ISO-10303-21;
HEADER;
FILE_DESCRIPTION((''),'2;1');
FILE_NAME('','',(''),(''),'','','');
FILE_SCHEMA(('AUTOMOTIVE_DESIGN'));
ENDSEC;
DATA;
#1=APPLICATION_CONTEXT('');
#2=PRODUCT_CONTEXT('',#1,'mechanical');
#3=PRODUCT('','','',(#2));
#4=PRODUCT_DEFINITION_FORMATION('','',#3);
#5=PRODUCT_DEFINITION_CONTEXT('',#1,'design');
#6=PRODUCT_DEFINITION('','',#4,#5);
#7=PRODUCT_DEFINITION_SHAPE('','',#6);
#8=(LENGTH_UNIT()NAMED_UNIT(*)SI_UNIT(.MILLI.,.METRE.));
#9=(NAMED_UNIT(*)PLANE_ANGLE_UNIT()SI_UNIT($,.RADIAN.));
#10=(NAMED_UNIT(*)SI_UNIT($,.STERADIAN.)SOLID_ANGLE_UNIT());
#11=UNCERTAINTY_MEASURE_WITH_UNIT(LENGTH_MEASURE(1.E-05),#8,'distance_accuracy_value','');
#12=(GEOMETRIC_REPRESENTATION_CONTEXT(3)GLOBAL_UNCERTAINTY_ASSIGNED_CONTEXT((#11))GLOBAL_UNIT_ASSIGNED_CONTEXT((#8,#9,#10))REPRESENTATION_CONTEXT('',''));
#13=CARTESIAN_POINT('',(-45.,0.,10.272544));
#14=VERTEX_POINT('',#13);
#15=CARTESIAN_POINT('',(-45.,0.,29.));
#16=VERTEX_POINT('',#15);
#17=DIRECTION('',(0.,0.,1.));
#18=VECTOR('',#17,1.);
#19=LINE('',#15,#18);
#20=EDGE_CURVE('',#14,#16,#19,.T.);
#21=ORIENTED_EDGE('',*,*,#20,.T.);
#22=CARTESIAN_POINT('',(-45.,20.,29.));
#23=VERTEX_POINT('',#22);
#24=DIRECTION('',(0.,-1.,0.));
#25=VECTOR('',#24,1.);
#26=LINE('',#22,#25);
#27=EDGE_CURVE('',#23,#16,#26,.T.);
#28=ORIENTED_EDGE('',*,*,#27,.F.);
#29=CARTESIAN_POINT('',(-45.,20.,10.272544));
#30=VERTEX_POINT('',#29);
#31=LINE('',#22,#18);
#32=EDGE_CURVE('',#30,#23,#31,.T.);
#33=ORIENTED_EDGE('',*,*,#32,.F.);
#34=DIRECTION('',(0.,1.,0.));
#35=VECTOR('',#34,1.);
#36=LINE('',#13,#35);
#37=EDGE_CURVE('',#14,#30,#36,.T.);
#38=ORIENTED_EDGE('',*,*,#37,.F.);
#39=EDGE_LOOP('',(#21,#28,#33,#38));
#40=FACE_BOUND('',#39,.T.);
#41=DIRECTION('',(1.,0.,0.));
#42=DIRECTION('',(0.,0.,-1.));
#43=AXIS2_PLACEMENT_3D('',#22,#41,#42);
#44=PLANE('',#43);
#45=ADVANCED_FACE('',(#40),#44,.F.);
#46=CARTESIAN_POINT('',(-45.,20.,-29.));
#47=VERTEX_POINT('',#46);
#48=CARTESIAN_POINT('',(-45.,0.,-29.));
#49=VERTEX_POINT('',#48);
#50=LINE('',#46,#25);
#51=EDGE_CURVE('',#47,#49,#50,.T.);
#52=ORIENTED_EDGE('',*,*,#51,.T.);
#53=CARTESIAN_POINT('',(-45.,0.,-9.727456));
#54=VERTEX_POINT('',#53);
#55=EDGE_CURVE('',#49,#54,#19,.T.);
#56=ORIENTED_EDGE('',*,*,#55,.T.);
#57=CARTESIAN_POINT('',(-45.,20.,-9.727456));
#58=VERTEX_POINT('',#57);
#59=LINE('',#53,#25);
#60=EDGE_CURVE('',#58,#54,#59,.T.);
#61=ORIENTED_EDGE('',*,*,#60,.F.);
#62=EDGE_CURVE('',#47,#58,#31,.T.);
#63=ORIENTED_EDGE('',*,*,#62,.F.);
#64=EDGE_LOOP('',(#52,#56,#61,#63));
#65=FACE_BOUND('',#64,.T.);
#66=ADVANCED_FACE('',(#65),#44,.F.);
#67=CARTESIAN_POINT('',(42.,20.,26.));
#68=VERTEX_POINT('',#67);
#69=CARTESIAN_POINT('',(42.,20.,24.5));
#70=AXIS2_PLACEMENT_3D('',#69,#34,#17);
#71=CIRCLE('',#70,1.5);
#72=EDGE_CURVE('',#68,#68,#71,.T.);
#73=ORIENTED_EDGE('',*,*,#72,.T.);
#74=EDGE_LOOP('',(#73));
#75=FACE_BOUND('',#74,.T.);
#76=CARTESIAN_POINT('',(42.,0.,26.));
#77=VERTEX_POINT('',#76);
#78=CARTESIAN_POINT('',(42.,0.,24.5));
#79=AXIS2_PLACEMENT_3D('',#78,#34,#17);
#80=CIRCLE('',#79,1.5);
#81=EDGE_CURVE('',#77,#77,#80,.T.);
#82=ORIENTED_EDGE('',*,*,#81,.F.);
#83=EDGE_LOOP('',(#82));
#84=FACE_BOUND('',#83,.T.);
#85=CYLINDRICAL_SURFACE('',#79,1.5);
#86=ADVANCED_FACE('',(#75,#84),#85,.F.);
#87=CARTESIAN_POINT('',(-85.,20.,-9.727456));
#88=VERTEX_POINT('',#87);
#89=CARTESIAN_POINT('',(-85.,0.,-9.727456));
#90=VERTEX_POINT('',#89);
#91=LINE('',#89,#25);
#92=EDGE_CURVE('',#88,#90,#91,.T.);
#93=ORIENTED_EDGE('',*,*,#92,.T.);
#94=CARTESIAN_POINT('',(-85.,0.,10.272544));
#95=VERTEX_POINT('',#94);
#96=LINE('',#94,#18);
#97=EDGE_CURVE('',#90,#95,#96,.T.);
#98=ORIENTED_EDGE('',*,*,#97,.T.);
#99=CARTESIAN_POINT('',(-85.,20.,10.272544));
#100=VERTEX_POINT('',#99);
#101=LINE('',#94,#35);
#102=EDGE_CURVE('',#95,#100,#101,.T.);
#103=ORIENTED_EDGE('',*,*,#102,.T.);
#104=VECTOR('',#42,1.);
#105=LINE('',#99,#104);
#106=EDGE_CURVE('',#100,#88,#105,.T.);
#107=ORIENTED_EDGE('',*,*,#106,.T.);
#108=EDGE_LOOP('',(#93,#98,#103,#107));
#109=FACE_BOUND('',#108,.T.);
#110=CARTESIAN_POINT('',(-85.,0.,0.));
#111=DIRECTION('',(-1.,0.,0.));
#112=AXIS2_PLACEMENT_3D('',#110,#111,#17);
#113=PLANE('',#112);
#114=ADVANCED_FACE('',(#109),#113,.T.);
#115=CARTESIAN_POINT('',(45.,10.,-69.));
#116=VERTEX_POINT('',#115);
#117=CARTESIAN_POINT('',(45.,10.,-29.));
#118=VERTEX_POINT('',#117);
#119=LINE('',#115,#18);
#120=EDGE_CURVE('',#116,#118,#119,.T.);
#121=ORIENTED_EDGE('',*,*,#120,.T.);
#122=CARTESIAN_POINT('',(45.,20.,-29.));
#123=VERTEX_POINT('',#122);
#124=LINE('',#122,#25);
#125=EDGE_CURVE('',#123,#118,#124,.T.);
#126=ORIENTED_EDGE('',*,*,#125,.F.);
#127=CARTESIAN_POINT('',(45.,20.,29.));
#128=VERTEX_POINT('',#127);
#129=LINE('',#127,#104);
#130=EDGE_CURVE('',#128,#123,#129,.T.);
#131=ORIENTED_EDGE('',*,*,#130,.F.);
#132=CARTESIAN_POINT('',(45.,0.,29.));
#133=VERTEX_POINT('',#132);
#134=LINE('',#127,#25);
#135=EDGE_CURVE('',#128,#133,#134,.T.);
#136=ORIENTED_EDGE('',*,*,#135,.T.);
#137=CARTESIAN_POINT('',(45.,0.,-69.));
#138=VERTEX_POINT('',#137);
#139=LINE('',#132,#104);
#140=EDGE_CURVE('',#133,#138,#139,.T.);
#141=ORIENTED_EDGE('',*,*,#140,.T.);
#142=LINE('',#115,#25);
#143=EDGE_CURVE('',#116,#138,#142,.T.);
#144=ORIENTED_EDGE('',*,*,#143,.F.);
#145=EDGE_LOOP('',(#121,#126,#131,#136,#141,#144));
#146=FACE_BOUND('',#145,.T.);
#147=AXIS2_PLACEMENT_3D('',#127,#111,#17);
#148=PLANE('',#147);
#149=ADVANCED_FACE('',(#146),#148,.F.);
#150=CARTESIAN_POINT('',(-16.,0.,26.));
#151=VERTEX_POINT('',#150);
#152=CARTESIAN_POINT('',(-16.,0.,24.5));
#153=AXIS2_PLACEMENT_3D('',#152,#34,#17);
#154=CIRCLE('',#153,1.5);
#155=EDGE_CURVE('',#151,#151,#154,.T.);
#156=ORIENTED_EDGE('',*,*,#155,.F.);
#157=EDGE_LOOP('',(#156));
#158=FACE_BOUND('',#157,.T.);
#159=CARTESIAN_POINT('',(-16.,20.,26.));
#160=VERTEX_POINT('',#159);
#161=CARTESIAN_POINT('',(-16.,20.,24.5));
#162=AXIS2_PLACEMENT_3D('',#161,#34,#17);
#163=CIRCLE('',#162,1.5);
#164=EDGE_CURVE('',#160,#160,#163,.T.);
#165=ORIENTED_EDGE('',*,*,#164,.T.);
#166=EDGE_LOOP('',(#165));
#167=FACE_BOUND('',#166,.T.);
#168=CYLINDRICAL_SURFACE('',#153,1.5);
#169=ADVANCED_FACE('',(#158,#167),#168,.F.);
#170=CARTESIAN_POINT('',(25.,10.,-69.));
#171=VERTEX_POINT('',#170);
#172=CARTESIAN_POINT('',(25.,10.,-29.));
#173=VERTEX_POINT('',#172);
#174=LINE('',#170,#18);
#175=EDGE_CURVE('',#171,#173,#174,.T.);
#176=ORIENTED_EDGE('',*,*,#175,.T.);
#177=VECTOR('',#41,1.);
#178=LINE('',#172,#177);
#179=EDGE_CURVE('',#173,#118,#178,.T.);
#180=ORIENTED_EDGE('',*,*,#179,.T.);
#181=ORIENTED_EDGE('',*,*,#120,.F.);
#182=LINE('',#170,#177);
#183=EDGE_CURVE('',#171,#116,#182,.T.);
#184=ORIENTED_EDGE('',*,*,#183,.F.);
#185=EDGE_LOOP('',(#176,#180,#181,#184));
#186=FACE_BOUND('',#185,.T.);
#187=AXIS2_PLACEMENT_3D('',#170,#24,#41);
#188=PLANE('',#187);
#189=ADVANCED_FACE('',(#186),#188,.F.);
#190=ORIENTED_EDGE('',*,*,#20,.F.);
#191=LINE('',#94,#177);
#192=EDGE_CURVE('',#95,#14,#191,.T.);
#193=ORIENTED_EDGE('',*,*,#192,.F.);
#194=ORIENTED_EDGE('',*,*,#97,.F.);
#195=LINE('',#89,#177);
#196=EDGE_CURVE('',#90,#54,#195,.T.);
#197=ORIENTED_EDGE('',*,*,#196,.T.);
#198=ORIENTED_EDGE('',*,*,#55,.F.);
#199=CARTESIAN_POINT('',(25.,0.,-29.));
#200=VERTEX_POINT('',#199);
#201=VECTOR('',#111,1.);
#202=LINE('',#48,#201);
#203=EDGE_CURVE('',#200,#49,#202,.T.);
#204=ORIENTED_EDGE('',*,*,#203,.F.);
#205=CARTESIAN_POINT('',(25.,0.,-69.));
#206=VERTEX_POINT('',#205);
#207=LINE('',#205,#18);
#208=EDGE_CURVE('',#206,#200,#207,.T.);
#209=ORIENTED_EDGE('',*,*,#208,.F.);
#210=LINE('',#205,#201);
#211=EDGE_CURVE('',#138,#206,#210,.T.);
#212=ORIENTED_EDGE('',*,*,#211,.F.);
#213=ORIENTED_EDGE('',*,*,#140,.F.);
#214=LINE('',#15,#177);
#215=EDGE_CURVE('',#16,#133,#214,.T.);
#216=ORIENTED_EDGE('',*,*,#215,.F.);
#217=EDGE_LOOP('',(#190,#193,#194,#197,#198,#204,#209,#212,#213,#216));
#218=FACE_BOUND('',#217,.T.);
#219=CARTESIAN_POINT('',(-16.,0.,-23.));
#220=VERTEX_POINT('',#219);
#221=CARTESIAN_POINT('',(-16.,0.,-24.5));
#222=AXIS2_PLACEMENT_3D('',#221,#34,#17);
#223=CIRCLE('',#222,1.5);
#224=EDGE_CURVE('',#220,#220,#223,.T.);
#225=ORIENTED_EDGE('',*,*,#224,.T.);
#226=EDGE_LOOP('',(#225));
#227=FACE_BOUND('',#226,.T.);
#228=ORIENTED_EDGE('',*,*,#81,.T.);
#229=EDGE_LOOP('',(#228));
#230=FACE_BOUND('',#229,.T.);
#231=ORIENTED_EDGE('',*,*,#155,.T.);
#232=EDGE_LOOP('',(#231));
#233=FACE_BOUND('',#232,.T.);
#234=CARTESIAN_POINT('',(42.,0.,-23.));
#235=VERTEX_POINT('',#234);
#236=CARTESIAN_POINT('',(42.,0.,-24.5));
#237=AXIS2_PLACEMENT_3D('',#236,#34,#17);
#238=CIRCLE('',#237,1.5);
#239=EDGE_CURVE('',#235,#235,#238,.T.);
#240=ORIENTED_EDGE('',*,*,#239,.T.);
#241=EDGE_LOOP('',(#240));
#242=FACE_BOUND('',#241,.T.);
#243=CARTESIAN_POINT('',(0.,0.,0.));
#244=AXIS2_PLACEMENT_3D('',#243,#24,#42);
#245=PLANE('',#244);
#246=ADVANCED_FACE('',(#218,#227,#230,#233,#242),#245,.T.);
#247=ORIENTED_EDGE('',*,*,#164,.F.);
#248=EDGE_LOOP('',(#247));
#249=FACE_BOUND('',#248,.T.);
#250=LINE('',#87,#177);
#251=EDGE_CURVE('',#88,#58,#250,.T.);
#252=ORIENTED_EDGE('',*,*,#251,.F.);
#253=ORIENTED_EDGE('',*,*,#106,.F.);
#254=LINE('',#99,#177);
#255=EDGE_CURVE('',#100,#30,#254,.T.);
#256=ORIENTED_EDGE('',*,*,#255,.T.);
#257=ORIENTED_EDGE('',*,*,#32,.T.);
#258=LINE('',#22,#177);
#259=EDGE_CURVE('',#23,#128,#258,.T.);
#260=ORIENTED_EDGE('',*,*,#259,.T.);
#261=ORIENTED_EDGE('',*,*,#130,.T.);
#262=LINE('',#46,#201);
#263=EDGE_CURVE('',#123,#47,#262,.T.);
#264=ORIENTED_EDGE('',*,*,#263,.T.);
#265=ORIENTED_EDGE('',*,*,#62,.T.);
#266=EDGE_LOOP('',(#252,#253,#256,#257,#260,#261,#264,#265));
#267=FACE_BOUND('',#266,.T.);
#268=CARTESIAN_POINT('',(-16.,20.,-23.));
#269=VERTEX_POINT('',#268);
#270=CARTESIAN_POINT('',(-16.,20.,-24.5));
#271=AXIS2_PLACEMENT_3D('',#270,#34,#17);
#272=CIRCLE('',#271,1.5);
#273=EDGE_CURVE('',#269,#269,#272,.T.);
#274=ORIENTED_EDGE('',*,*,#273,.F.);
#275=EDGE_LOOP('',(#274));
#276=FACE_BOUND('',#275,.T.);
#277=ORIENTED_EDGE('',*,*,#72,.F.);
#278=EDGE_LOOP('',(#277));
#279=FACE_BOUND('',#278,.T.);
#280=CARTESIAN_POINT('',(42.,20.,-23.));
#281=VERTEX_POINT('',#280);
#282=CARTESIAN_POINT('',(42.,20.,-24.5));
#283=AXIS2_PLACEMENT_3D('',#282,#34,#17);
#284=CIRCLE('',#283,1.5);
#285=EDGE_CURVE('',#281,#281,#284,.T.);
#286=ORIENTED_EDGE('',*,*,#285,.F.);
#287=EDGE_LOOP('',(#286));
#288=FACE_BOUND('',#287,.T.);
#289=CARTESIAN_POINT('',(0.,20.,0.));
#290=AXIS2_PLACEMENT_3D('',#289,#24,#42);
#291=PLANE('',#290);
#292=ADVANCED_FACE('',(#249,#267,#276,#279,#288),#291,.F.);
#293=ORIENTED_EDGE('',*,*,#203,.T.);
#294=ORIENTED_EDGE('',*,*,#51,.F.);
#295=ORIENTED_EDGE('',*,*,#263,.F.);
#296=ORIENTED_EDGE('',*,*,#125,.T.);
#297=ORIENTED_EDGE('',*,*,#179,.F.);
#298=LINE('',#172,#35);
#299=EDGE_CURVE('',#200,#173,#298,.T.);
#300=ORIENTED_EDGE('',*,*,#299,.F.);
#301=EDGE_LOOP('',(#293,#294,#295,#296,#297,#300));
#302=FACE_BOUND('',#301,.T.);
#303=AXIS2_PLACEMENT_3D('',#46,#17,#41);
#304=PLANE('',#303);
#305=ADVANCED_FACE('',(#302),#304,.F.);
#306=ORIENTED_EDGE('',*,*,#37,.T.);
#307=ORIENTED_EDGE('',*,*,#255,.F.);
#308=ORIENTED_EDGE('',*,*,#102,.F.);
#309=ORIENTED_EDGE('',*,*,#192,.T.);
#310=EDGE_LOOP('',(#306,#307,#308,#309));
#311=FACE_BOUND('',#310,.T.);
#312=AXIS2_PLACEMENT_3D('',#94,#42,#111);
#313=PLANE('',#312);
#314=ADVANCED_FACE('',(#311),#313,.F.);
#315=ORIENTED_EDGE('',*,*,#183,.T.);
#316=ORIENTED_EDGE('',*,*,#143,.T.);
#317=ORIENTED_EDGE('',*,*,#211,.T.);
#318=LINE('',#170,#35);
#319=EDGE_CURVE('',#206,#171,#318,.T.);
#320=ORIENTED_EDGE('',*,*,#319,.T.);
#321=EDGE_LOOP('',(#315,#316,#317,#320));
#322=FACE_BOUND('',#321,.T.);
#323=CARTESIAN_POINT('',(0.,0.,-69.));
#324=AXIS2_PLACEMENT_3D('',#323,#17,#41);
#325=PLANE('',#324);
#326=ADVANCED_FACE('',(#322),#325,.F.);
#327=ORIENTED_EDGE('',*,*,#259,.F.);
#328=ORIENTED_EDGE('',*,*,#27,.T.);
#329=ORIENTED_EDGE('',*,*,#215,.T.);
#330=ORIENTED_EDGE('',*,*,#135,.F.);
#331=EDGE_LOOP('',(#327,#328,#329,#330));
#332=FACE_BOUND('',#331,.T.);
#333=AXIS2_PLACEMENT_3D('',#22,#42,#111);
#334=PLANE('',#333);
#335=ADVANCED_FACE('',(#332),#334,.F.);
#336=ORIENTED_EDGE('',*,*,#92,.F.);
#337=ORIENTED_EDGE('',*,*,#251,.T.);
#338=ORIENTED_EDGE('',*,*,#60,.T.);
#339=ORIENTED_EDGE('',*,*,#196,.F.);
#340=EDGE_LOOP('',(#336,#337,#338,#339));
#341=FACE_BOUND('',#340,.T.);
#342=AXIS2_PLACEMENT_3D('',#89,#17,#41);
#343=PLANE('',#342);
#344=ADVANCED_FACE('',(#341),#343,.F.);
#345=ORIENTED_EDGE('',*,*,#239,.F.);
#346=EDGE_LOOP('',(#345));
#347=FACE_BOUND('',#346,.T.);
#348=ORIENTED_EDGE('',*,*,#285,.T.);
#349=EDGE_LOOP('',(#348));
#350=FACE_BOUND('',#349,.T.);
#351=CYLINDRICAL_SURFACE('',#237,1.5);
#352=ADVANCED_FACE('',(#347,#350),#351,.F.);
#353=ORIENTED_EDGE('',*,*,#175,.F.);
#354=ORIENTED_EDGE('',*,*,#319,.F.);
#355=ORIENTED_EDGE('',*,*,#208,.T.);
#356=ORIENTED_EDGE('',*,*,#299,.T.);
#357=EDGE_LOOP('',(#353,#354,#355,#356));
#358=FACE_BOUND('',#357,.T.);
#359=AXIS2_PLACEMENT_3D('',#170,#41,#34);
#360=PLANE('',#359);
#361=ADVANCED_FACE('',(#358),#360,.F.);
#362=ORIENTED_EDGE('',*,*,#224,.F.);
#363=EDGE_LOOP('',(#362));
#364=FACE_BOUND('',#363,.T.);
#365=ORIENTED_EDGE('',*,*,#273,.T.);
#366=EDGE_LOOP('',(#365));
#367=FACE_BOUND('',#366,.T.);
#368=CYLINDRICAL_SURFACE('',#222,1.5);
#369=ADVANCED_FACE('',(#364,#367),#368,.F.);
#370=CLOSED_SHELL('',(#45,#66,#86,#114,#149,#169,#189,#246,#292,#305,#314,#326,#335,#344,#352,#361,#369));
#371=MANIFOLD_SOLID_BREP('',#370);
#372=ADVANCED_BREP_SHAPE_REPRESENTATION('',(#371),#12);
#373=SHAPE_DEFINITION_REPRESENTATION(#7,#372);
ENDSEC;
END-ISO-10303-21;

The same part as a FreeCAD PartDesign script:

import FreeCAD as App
import Part
import Sketcher
Q = App.Units.Quantity


def add_polygon(sketch, points):
    """Adds a closed chain of lines whose ends are joined by coincident constraints."""
    first, n = sketch.GeometryCount, len(points)
    for a, b in zip(points, points[1:] + points[:1]):
        sketch.addGeometry(Part.LineSegment(App.Vector(*a, 0), App.Vector(*b, 0)), False)
    for i in range(n):
        sketch.addConstraint(Sketcher.Constraint("Coincident", first + i, 2, first + (i + 1) % n, 1))

doc = App.newDocument("Part")
body = doc.addObject("PartDesign::Body", "Body")

# Sketch on XZ plane
sketch1 = doc.addObject("Sketcher::SketchObject", "Sketch")
body.addObject(sketch1)
sketch1.AttachmentSupport = (doc.XZ_Plane, [""])
sketch1.MapMode = "FlatFace"
add_polygon(sketch1, [(-45, -29), (-45, 29), (45, 29), (45, -29)])  # lines 0-3
sketch1.addConstraint(Sketcher.Constraint("Vertical", 0))
sketch1.addConstraint(Sketcher.Constraint("Horizontal", 1))
sketch1.addConstraint(Sketcher.Constraint("Vertical", 2))
sketch1.addConstraint(Sketcher.Constraint("Horizontal", 3))
sketch1.addConstraint(Sketcher.Constraint("Symmetric", 0, 2, 2, 2, -1, 1))
sketch1.addConstraint(Sketcher.Constraint("DistanceX", 1, 1, 1, 2, Q("90 mm")))
sketch1.addConstraint(Sketcher.Constraint("DistanceY", 0, 1, 0, 2, Q("58 mm")))
pad1 = doc.addObject("PartDesign::Pad", "Pad")
body.addObject(pad1)
pad1.Profile = sketch1
pad1.Length = 20
pad1.Reversed = True

# Sketch on XZ plane
sketch2 = doc.addObject("Sketcher::SketchObject", "Sketch001")
body.addObject(sketch2)
sketch2.AttachmentSupport = (doc.XZ_Plane, [""])
sketch2.MapMode = "FlatFace"
sketch2.AttachmentOffset = App.Placement(App.Vector(0, 0, -20), App.Rotation())
sketch2.addGeometry(Part.Circle(App.Vector(42, -24.5, 0), App.Vector(0, 0, 1), 1.5), False)
sketch2.addGeometry(Part.Circle(App.Vector(42, 24.5, 0), App.Vector(0, 0, 1), 1.5), False)
sketch2.addGeometry(Part.Circle(App.Vector(-16, -24.5, 0), App.Vector(0, 0, 1), 1.5), False)
sketch2.addGeometry(Part.Circle(App.Vector(-16, 24.5, 0), App.Vector(0, 0, 1), 1.5), False)
sketch2.addConstraint(Sketcher.Constraint("Equal", 0, 1))
sketch2.addConstraint(Sketcher.Constraint("Equal", 1, 2))
sketch2.addConstraint(Sketcher.Constraint("Equal", 2, 3))
sketch2.addConstraint(Sketcher.Constraint("Symmetric", 0, 3, 1, 3, -1))
sketch2.addConstraint(Sketcher.Constraint("Symmetric", 2, 3, 3, 3, -1))
sketch2.addConstraint(Sketcher.Constraint("Horizontal", 0, 3, 2, 3))
sketch2.addConstraint(Sketcher.Constraint("Diameter", 0, Q("3 mm")))
sketch2.addConstraint(Sketcher.Constraint("DistanceX", -1, 1, 0, 3, Q("42 mm")))
sketch2.addConstraint(Sketcher.Constraint("DistanceX", 2, 3, -1, 1, Q("16 mm")))
sketch2.addConstraint(Sketcher.Constraint("DistanceY", 0, 3, 1, 3, Q("49 mm")))
pocket1 = doc.addObject("PartDesign::Pocket", "Pocket")
body.addObject(pocket1)
pocket1.Profile = sketch2
pocket1.Length = 20
pocket1.Reversed = True

# Sketch on XY plane
sketch3 = doc.addObject("Sketcher::SketchObject", "Sketch002")
body.addObject(sketch3)
sketch3.AttachmentSupport = (doc.XY_Plane, [""])
sketch3.MapMode = "FlatFace"
sketch3.AttachmentOffset = App.Placement(App.Vector(0, 0, -29), App.Rotation())
add_polygon(sketch3, [(45, 10), (45, 0), (25, 0), (25, 10)])  # lines 0-3
sketch3.addConstraint(Sketcher.Constraint("Vertical", 0))
sketch3.addConstraint(Sketcher.Constraint("Horizontal", 1))
sketch3.addConstraint(Sketcher.Constraint("Vertical", 2))
sketch3.addConstraint(Sketcher.Constraint("Horizontal", 3))
sketch3.addConstraint(Sketcher.Constraint("PointOnObject", 0, 2, -1))
sketch3.addConstraint(Sketcher.Constraint("DistanceX", 1, 2, 1, 1, Q("20 mm")))
sketch3.addConstraint(Sketcher.Constraint("DistanceY", 0, 2, 0, 1, Q("10 mm")))
sketch3.addConstraint(Sketcher.Constraint("DistanceX", -1, 1, 0, 2, Q("45 mm")))
pad2 = doc.addObject("PartDesign::Pad", "Pad001")
body.addObject(pad2)
pad2.Profile = sketch3
pad2.Length = 40
pad2.Reversed = True

# Sketch on YZ plane
sketch4 = doc.addObject("Sketcher::SketchObject", "Sketch003")
body.addObject(sketch4)
sketch4.AttachmentSupport = (doc.YZ_Plane, [""])
sketch4.MapMode = "FlatFace"
sketch4.AttachmentOffset = App.Placement(App.Vector(0, 0, -45), App.Rotation())
add_polygon(sketch4, [(20, -10), (0, -10), (0, 10), (20, 10)])  # lines 0-3
sketch4.addConstraint(Sketcher.Constraint("Horizontal", 0))
sketch4.addConstraint(Sketcher.Constraint("Vertical", 1))
sketch4.addConstraint(Sketcher.Constraint("Horizontal", 2))
sketch4.addConstraint(Sketcher.Constraint("Vertical", 3))
sketch4.addConstraint(Sketcher.Constraint("PointOnObject", 0, 2, -2))
sketch4.addConstraint(Sketcher.Constraint("Equal", 2, 1))
sketch4.addConstraint(Sketcher.Constraint("DistanceX", 0, 2, 0, 1, Q("20 mm")))
sketch4.addConstraint(Sketcher.Constraint("DistanceY", 0, 2, -1, 1, Q("9.727456 mm")))
pad3 = doc.addObject("PartDesign::Pad", "Pad002")
body.addObject(pad3)
pad3.Profile = sketch4
pad3.Length = 40
pad3.Reversed = True

doc.recompute()
